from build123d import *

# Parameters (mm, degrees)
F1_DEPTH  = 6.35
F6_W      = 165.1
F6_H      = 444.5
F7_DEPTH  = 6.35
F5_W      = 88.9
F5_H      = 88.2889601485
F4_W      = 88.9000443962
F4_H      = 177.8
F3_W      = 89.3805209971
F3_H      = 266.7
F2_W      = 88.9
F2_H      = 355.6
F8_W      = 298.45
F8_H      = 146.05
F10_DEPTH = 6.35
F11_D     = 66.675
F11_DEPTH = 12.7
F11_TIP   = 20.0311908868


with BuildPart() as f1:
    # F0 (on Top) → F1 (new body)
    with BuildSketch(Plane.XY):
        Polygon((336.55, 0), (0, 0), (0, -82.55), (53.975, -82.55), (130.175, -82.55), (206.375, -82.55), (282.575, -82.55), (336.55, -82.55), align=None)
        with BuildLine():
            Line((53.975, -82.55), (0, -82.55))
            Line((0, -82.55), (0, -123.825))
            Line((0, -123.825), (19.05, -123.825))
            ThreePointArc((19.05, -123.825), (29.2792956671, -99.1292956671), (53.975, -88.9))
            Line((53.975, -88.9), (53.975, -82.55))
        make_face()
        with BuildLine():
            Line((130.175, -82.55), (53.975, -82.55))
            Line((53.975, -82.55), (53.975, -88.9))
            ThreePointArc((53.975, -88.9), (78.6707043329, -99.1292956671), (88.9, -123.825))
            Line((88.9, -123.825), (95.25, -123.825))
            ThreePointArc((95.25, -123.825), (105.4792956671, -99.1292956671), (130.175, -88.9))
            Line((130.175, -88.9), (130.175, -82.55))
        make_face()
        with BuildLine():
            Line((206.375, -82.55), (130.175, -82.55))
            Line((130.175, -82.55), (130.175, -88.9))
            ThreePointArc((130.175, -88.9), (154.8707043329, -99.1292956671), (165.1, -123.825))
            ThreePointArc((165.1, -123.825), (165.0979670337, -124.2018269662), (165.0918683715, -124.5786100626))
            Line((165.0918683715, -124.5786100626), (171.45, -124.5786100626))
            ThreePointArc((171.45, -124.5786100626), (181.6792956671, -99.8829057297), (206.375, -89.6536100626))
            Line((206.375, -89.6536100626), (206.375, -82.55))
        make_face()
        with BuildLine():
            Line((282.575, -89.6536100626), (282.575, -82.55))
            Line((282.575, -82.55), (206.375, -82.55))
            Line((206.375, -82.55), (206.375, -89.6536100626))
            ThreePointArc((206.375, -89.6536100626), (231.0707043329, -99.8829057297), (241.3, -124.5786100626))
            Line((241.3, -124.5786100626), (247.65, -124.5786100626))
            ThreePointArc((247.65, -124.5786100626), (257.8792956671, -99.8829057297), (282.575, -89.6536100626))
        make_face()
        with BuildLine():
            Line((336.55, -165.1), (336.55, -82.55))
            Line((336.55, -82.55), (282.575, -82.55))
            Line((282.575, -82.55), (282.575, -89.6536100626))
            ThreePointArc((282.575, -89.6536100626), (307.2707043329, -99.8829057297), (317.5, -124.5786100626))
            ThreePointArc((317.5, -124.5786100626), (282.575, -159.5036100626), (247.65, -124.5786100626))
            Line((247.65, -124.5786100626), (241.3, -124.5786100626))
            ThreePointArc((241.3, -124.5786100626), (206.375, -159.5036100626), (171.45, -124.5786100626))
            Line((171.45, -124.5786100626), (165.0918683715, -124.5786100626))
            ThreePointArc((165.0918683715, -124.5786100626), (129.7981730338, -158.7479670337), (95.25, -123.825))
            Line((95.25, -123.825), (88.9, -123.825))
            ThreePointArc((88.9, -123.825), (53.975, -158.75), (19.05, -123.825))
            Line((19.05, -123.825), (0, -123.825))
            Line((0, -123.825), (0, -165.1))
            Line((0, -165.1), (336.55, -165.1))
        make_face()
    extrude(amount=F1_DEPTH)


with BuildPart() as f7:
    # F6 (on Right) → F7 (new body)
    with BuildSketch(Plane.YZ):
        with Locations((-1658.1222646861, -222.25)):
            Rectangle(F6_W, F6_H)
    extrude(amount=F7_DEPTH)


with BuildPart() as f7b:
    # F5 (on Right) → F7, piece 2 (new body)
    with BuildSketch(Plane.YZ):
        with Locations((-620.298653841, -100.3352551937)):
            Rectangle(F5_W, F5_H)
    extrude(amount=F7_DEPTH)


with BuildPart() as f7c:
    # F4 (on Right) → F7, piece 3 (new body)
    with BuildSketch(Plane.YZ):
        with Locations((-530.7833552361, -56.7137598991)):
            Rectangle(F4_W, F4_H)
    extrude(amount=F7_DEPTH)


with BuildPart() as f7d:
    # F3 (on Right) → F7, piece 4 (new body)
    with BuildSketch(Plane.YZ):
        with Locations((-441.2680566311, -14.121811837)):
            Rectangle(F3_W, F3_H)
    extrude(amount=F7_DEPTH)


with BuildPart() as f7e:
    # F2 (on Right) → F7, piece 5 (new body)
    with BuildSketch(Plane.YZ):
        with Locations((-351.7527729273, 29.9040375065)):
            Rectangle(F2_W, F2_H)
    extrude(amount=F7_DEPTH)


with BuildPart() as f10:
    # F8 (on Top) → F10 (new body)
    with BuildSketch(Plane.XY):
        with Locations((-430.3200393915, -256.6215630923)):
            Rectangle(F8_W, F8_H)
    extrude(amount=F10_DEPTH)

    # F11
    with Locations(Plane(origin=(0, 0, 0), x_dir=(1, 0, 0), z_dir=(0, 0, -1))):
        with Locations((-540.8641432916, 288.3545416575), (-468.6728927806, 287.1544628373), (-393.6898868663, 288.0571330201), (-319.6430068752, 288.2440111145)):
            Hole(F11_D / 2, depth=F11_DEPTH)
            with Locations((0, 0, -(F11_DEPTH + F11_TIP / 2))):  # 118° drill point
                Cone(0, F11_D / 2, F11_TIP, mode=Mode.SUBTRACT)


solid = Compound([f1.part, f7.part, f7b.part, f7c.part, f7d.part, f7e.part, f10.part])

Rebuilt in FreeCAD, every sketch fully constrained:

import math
import FreeCAD as App
import Part
import Sketcher

V = App.Vector
Q = App.Units.Quantity

doc = App.newDocument("Part")
body = doc.addObject("PartDesign::Body", "Body")

# Sketch on XY plane
sketch1 = doc.addObject("Sketcher::SketchObject", "Sketch")
body.addObject(sketch1)
sketch1.AttachmentSupport = (doc.XY_Plane, [""])
sketch1.MapMode = "FlatFace"
sketch1.addGeometry([
    Part.LineSegment(V(336.6, 0, 0), V(0, 0, 0)),  # 0
    Part.LineSegment(V(0, 0, 0), V(0, -165.1, 0)),  # 1
    Part.LineSegment(V(0, -165.1, 0), V(336.6, -165.1, 0)),  # 2
    Part.LineSegment(V(336.6, -165.1, 0), V(336.6, 0, 0)),  # 3
    Part.ArcOfCircle(Part.Circle(V(54, -123.8, 0), V(0, 0, 1), 34.9), math.radians(90), math.radians(180)),  # 4
    Part.ArcOfCircle(Part.Circle(V(54, -123.8, 0), V(0, 0, 1), 34.9), math.radians(0), math.radians(90)),  # 5
    Part.ArcOfCircle(Part.Circle(V(54, -123.8, 0), V(0, 0, 1), 34.9), math.radians(180), math.radians(360)),  # 6
    Part.ArcOfCircle(Part.Circle(V(130.2, -123.8, 0), V(0, 0, 1), 34.9), math.radians(90), math.radians(180)),  # 7
    Part.ArcOfCircle(Part.Circle(V(130.2, -123.8, 0), V(0, 0, 1), 34.9), math.radians(0), math.radians(90)),  # 8
    Part.ArcOfCircle(Part.Circle(V(130.2, -123.8, 0), V(0, 0, 1), 34.9), math.radians(-1.24), math.radians(0)),  # 9
    Part.ArcOfCircle(Part.Circle(V(130.2, -123.8, 0), V(0, 0, 1), 34.9), math.radians(180), math.radians(359)),  # 10
    Part.ArcOfCircle(Part.Circle(V(206.4, -124.6, 0), V(0, 0, 1), 34.9), math.radians(90), math.radians(180)),  # 11
    Part.ArcOfCircle(Part.Circle(V(206.4, -124.6, 0), V(0, 0, 1), 34.9), math.radians(0), math.radians(90)),  # 12
    Part.ArcOfCircle(Part.Circle(V(206.4, -124.6, 0), V(0, 0, 1), 34.9), math.radians(180), math.radians(360)),  # 13
    Part.ArcOfCircle(Part.Circle(V(282.6, -124.6, 0), V(0, 0, 1), 34.9), math.radians(90), math.radians(180)),  # 14
    Part.ArcOfCircle(Part.Circle(V(282.6, -124.6, 0), V(0, 0, 1), 34.9), math.radians(0), math.radians(90)),  # 15
    Part.ArcOfCircle(Part.Circle(V(282.6, -124.6, 0), V(0, 0, 1), 34.9), math.radians(180), math.radians(360)),  # 16
], False)
sketch1.addConstraint([
    Sketcher.Constraint("Coincident", 0, 2, 1, 1),
    Sketcher.Constraint("Coincident", 1, 2, 2, 1),
    Sketcher.Constraint("Coincident", 2, 2, 3, 1),
    Sketcher.Constraint("Coincident", 3, 2, 0, 1),
    Sketcher.Constraint("Tangent", 4, 1, 5, 2),
    Sketcher.Constraint("Tangent", 5, 1, 6, 2),
    Sketcher.Constraint("Tangent", 6, 1, 4, 2),
    Sketcher.Constraint("Tangent", 7, 1, 8, 2),
    Sketcher.Constraint("Tangent", 8, 1, 9, 2),
    Sketcher.Constraint("Tangent", 9, 1, 10, 2),
    Sketcher.Constraint("Tangent", 10, 1, 7, 2),
    Sketcher.Constraint("Tangent", 11, 1, 12, 2),
    Sketcher.Constraint("Tangent", 12, 1, 13, 2),
    Sketcher.Constraint("Tangent", 13, 1, 11, 2),
    Sketcher.Constraint("Tangent", 14, 1, 15, 2),
    Sketcher.Constraint("Tangent", 15, 1, 16, 2),
    Sketcher.Constraint("Tangent", 16, 1, 14, 2),
    Sketcher.Constraint("Horizontal", 0),
    Sketcher.Constraint("Vertical", 1),
    Sketcher.Constraint("Horizontal", 2),
    Sketcher.Constraint("Vertical", 3),
    Sketcher.Constraint("Coincident", 0, 2, -1, 1),
    Sketcher.Constraint("Equal", 6, 7),
    Sketcher.Constraint("Equal", 7, 8),
    Sketcher.Constraint("Equal", 10, 11),
    Sketcher.Constraint("Equal", 13, 14),
    Sketcher.Constraint("Horizontal", 6, 3, 7, 3),
    Sketcher.Constraint("Horizontal", 13, 3, 14, 3),
    Sketcher.Constraint("Horizontal", 10, 3, 5, 1),
    Sketcher.Constraint("Horizontal", 5, 1, 6, 1),
    Sketcher.Constraint("Horizontal", 6, 1, 8, 1),
    Sketcher.Constraint("Horizontal", 16, 3, 9, 1),
    Sketcher.Constraint("Horizontal", 8, 1, 10, 1),
    Sketcher.Constraint("Horizontal", 9, 1, 12, 1),
    Sketcher.Constraint("Horizontal", 12, 1, 13, 1),
    Sketcher.Constraint("Horizontal", 13, 1, 15, 1),
    Sketcher.Constraint("Horizontal", 15, 1, 16, 1),
    Sketcher.Constraint("Vertical", 6, 3, 4, 1),
    Sketcher.Constraint("Vertical", 10, 3, 7, 1),
    Sketcher.Constraint("Vertical", 13, 3, 11, 1),
    Sketcher.Constraint("Vertical", 16, 3, 14, 1),
    Sketcher.Constraint("DistanceY", 1, 2, 1, 1, Q("6.5 in")),
    Sketcher.Constraint("Radius", 4, Q("1.375 in")),
    Sketcher.Constraint("DistanceX", 4, 3, 7, 3, Q("3 in")),
    Sketcher.Constraint("DistanceX", 7, 3, 11, 3, Q("3 in")),
    Sketcher.Constraint("DistanceX", 11, 3, 14, 3, Q("3 in")),
    Sketcher.Constraint("DistanceX", 0, 2, 0, 1, Q("13.25 in")),
    Sketcher.Constraint("DistanceY", 4, 1, -1, 1, Q("3.5 in")),
    Sketcher.Constraint("DistanceX", -1, 1, 5, 1, Q("3.5 in")),
    Sketcher.Constraint("DistanceY", 11, 3, -1, 1, Q("124.57861 mm")),
])
pad1 = doc.addObject("PartDesign::Pad", "Pad")
body.addObject(pad1)
pad1.Profile = sketch1
pad1.Length = Q("0.25 in")
body2 = doc.addObject("PartDesign::Body", "Body001")

# Sketch on YZ plane
sketch2 = doc.addObject("Sketcher::SketchObject", "Sketch001")
body2.addObject(sketch2)
sketch2.AttachmentSupport = (doc.getObject("YZ_Plane001"), [""])
sketch2.MapMode = "FlatFace"
sketch2.addGeometry([
    Part.LineSegment(V(-1741, 0, 0), V(-1741, -444, 0)),
    Part.LineSegment(V(-1741, -444, 0), V(-1576, -444, 0)),
    Part.LineSegment(V(-1576, -444, 0), V(-1576, 0, 0)),
    Part.LineSegment(V(-1576, 0, 0), V(-1741, 0, 0)),
], False)
sketch2.addConstraint([
    Sketcher.Constraint("Coincident", 0, 2, 1, 1),
    Sketcher.Constraint("Coincident", 1, 2, 2, 1),
    Sketcher.Constraint("Coincident", 2, 2, 3, 1),
    Sketcher.Constraint("Coincident", 3, 2, 0, 1),
    Sketcher.Constraint("Vertical", 0),
    Sketcher.Constraint("Horizontal", 1),
    Sketcher.Constraint("Vertical", 2),
    Sketcher.Constraint("Horizontal", 3),
    Sketcher.Constraint("PointOnObject", 2, 2, -1),
    Sketcher.Constraint("DistanceX", 1, 1, 1, 2, Q("6.5 in")),
    Sketcher.Constraint("DistanceY", 0, 2, 0, 1, Q("17.5 in")),
    Sketcher.Constraint("DistanceX", 0, 2, -1, 1, Q("1740.672265 mm")),
])
pad2 = doc.addObject("PartDesign::Pad", "Pad001")
body2.addObject(pad2)
pad2.Profile = sketch2
pad2.Length = Q("0.25 in")
body3 = doc.addObject("PartDesign::Body", "Body002")

# Sketch on YZ plane
sketch3 = doc.addObject("Sketcher::SketchObject", "Sketch002")
body3.addObject(sketch3)
sketch3.AttachmentSupport = (doc.getObject("YZ_Plane002"), [""])
sketch3.MapMode = "FlatFace"
sketch3.addGeometry([
    Part.LineSegment(V(-665, -56, 0), V(-665, -144, 0)),
    Part.LineSegment(V(-665, -144, 0), V(-576, -144, 0)),
    Part.LineSegment(V(-576, -144, 0), V(-576, -56, 0)),
    Part.LineSegment(V(-576, -56, 0), V(-665, -56, 0)),
], False)
sketch3.addConstraint([
    Sketcher.Constraint("Coincident", 0, 2, 1, 1),
    Sketcher.Constraint("Coincident", 1, 2, 2, 1),
    Sketcher.Constraint("Coincident", 2, 2, 3, 1),
    Sketcher.Constraint("Coincident", 3, 2, 0, 1),
    Sketcher.Constraint("Vertical", 0),
    Sketcher.Constraint("Horizontal", 1),
    Sketcher.Constraint("Vertical", 2),
    Sketcher.Constraint("Horizontal", 3),
    Sketcher.Constraint("DistanceX", 1, 1, 1, 2, Q("3.5 in")),
    Sketcher.Constraint("DistanceY", 0, 2, 0, 1, Q("88.28896 mm")),
    Sketcher.Constraint("DistanceX", 0, 2, -1, 1, Q("664.748654 mm")),
    Sketcher.Constraint("DistanceY", 0, 2, -1, 1, Q("144.479735 mm")),
])
pad3 = doc.addObject("PartDesign::Pad", "Pad002")
body3.addObject(pad3)
pad3.Profile = sketch3
pad3.Length = Q("0.25 in")
body4 = doc.addObject("PartDesign::Body", "Body003")

# Sketch on YZ plane
sketch4 = doc.addObject("Sketcher::SketchObject", "Sketch003")
body4.addObject(sketch4)
sketch4.AttachmentSupport = (doc.getObject("YZ_Plane003"), [""])
sketch4.MapMode = "FlatFace"
sketch4.addGeometry([
    Part.LineSegment(V(-575, 32, 0), V(-575, -146, 0)),
    Part.LineSegment(V(-575, -146, 0), V(-486, -146, 0)),
    Part.LineSegment(V(-486, -146, 0), V(-486, 32, 0)),
    Part.LineSegment(V(-486, 32, 0), V(-575, 32, 0)),
], False)
sketch4.addConstraint([
    Sketcher.Constraint("Coincident", 0, 2, 1, 1),
    Sketcher.Constraint("Coincident", 1, 2, 2, 1),
    Sketcher.Constraint("Coincident", 2, 2, 3, 1),
    Sketcher.Constraint("Coincident", 3, 2, 0, 1),
    Sketcher.Constraint("Vertical", 0),
    Sketcher.Constraint("Horizontal", 1),
    Sketcher.Constraint("Vertical", 2),
    Sketcher.Constraint("Horizontal", 3),
    Sketcher.Constraint("DistanceY", 0, 2, 0, 1, Q("7 in")),
    Sketcher.Constraint("DistanceX", 1, 1, 1, 2, Q("88.900044 mm")),
    Sketcher.Constraint("DistanceY", 0, 2, -1, 1, Q("145.61376 mm")),
    Sketcher.Constraint("DistanceX", 0, 2, -1, 1, Q("575.233377 mm")),
])
pad4 = doc.addObject("PartDesign::Pad", "Pad003")
body4.addObject(pad4)
pad4.Profile = sketch4
pad4.Length = Q("0.25 in")
body5 = doc.addObject("PartDesign::Body", "Body004")

# Sketch on YZ plane
sketch5 = doc.addObject("Sketcher::SketchObject", "Sketch004")
body5.addObject(sketch5)
sketch5.AttachmentSupport = (doc.getObject("YZ_Plane004"), [""])
sketch5.MapMode = "FlatFace"
sketch5.addGeometry([
    Part.LineSegment(V(-486, 119, 0), V(-486, -147, 0)),
    Part.LineSegment(V(-486, -147, 0), V(-397, -147, 0)),
    Part.LineSegment(V(-397, -147, 0), V(-397, 119, 0)),
    Part.LineSegment(V(-397, 119, 0), V(-486, 119, 0)),
], False)
sketch5.addConstraint([
    Sketcher.Constraint("Coincident", 0, 2, 1, 1),
    Sketcher.Constraint("Coincident", 1, 2, 2, 1),
    Sketcher.Constraint("Coincident", 2, 2, 3, 1),
    Sketcher.Constraint("Coincident", 3, 2, 0, 1),
    Sketcher.Constraint("Vertical", 0),
    Sketcher.Constraint("Horizontal", 1),
    Sketcher.Constraint("Vertical", 2),
    Sketcher.Constraint("Horizontal", 3),
    Sketcher.Constraint("DistanceY", 0, 2, 0, 1, Q("10.5 in")),
    Sketcher.Constraint("DistanceX", 1, 1, 1, 2, Q("89.380521 mm")),
    Sketcher.Constraint("DistanceY", 0, 2, -1, 1, Q("147.471812 mm")),
    Sketcher.Constraint("DistanceX", 0, 2, -1, 1, Q("485.958317 mm")),
])
pad5 = doc.addObject("PartDesign::Pad", "Pad004")
body5.addObject(pad5)
pad5.Profile = sketch5
pad5.Length = Q("0.25 in")
body6 = doc.addObject("PartDesign::Body", "Body005")

# Sketch on YZ plane
sketch6 = doc.addObject("Sketcher::SketchObject", "Sketch005")
body6.addObject(sketch6)
sketch6.AttachmentSupport = (doc.getObject("YZ_Plane005"), [""])
sketch6.MapMode = "FlatFace"
sketch6.addGeometry([
    Part.LineSegment(V(-396, 208, 0), V(-396, -148, 0)),
    Part.LineSegment(V(-396, -148, 0), V(-307, -148, 0)),
    Part.LineSegment(V(-307, -148, 0), V(-307, 208, 0)),
    Part.LineSegment(V(-307, 208, 0), V(-396, 208, 0)),
], False)
sketch6.addConstraint([
    Sketcher.Constraint("Coincident", 0, 2, 1, 1),
    Sketcher.Constraint("Coincident", 1, 2, 2, 1),
    Sketcher.Constraint("Coincident", 2, 2, 3, 1),
    Sketcher.Constraint("Coincident", 3, 2, 0, 1),
    Sketcher.Constraint("Vertical", 0),
    Sketcher.Constraint("Horizontal", 1),
    Sketcher.Constraint("Vertical", 2),
    Sketcher.Constraint("Horizontal", 3),
    Sketcher.Constraint("DistanceY", 0, 2, 0, 1, Q("14 in")),
    Sketcher.Constraint("DistanceX", 1, 1, 1, 2, Q("3.5 in")),
    Sketcher.Constraint("DistanceX", 0, 2, -1, 1, Q("396.202773 mm")),
    Sketcher.Constraint("DistanceY", 0, 2, -1, 1, Q("147.895962 mm")),
])
pad6 = doc.addObject("PartDesign::Pad", "Pad005")
body6.addObject(pad6)
pad6.Profile = sketch6
pad6.Length = Q("0.25 in")
body7 = doc.addObject("PartDesign::Body", "Body006")

# Sketch on XY plane
sketch7 = doc.addObject("Sketcher::SketchObject", "Sketch006")
body7.addObject(sketch7)
sketch7.AttachmentSupport = (doc.getObject("XY_Plane006"), [""])
sketch7.MapMode = "FlatFace"
sketch7.addGeometry([
    Part.LineSegment(V(-580, -184, 0), V(-580, -330, 0)),
    Part.LineSegment(V(-580, -330, 0), V(-281, -330, 0)),
    Part.LineSegment(V(-281, -330, 0), V(-281, -184, 0)),
    Part.LineSegment(V(-281, -184, 0), V(-580, -184, 0)),
], False)
sketch7.addConstraint([
    Sketcher.Constraint("Coincident", 0, 2, 1, 1),
    Sketcher.Constraint("Coincident", 1, 2, 2, 1),
    Sketcher.Constraint("Coincident", 2, 2, 3, 1),
    Sketcher.Constraint("Coincident", 3, 2, 0, 1),
    Sketcher.Constraint("Vertical", 0),
    Sketcher.Constraint("Horizontal", 1),
    Sketcher.Constraint("Vertical", 2),
    Sketcher.Constraint("Horizontal", 3),
    Sketcher.Constraint("DistanceX", 1, 1, 1, 2, Q("11.75 in")),
    Sketcher.Constraint("DistanceY", 0, 2, 0, 1, Q("5.75 in")),
    Sketcher.Constraint("DistanceX", 0, 2, -1, 1, Q("579.545039 mm")),
    Sketcher.Constraint("DistanceY", 0, 2, -1, 1, Q("329.646563 mm")),
])
pad7 = doc.addObject("PartDesign::Pad", "Pad006")
body7.addObject(pad7)
pad7.Profile = sketch7
pad7.Length = Q("0.25 in")

# Sketch on XY plane
sketch8 = doc.addObject("Sketcher::SketchObject", "Sketch007")
body7.addObject(sketch8)
sketch8.AttachmentSupport = (doc.getObject("XY_Plane006"), [""])
sketch8.MapMode = "FlatFace"
sketch8.addGeometry([
    Part.Circle(V(-541, -288, 0), V(0, 0, 1), 33),
    Part.Circle(V(-469, -287, 0), V(0, 0, 1), 33),
    Part.Circle(V(-394, -288, 0), V(0, 0, 1), 33),
    Part.Circle(V(-320, -288, 0), V(0, 0, 1), 33),
], False)
sketch8.addConstraint([
    Sketcher.Constraint("Equal", 0, 1),
    Sketcher.Constraint("Equal", 1, 2),
    Sketcher.Constraint("Equal", 2, 3),
    Sketcher.Constraint("Diameter", 0, Q("2.625 in")),
    Sketcher.Constraint("DistanceY", 0, 3, -1, 1, Q("288.354542 mm")),
    Sketcher.Constraint("DistanceY", 3, 3, -1, 1, Q("288.244011 mm")),
    Sketcher.Constraint("DistanceX", 0, 3, 1, 3, Q("72.191251 mm")),
    Sketcher.Constraint("DistanceY", 0, 3, 1, 3, Q("1.200079 mm")),
    Sketcher.Constraint("DistanceY", 2, 3, 1, 3, Q("0.90267 mm")),
    Sketcher.Constraint("DistanceX", 2, 3, 3, 3, Q("74.04688 mm")),
    Sketcher.Constraint("DistanceX", 0, 3, -1, 1, Q("540.864143 mm")),
    Sketcher.Constraint("DistanceX", 2, 3, -1, 1, Q("393.689887 mm")),
])
doc.recompute()
hole = doc.addObject("PartDesign::Hole", "Hole")
body7.addObject(hole)
hole.Profile = sketch8
hole.ThreadType = "None"
hole.Diameter = Q("2.625 in")
hole.DepthType = "Dimension"
hole.Depth = Q("0.5 in")
hole.DrillPoint = "Angled"
hole.DrillPointAngle = 118
hole.Reversed = True

doc.recompute()
